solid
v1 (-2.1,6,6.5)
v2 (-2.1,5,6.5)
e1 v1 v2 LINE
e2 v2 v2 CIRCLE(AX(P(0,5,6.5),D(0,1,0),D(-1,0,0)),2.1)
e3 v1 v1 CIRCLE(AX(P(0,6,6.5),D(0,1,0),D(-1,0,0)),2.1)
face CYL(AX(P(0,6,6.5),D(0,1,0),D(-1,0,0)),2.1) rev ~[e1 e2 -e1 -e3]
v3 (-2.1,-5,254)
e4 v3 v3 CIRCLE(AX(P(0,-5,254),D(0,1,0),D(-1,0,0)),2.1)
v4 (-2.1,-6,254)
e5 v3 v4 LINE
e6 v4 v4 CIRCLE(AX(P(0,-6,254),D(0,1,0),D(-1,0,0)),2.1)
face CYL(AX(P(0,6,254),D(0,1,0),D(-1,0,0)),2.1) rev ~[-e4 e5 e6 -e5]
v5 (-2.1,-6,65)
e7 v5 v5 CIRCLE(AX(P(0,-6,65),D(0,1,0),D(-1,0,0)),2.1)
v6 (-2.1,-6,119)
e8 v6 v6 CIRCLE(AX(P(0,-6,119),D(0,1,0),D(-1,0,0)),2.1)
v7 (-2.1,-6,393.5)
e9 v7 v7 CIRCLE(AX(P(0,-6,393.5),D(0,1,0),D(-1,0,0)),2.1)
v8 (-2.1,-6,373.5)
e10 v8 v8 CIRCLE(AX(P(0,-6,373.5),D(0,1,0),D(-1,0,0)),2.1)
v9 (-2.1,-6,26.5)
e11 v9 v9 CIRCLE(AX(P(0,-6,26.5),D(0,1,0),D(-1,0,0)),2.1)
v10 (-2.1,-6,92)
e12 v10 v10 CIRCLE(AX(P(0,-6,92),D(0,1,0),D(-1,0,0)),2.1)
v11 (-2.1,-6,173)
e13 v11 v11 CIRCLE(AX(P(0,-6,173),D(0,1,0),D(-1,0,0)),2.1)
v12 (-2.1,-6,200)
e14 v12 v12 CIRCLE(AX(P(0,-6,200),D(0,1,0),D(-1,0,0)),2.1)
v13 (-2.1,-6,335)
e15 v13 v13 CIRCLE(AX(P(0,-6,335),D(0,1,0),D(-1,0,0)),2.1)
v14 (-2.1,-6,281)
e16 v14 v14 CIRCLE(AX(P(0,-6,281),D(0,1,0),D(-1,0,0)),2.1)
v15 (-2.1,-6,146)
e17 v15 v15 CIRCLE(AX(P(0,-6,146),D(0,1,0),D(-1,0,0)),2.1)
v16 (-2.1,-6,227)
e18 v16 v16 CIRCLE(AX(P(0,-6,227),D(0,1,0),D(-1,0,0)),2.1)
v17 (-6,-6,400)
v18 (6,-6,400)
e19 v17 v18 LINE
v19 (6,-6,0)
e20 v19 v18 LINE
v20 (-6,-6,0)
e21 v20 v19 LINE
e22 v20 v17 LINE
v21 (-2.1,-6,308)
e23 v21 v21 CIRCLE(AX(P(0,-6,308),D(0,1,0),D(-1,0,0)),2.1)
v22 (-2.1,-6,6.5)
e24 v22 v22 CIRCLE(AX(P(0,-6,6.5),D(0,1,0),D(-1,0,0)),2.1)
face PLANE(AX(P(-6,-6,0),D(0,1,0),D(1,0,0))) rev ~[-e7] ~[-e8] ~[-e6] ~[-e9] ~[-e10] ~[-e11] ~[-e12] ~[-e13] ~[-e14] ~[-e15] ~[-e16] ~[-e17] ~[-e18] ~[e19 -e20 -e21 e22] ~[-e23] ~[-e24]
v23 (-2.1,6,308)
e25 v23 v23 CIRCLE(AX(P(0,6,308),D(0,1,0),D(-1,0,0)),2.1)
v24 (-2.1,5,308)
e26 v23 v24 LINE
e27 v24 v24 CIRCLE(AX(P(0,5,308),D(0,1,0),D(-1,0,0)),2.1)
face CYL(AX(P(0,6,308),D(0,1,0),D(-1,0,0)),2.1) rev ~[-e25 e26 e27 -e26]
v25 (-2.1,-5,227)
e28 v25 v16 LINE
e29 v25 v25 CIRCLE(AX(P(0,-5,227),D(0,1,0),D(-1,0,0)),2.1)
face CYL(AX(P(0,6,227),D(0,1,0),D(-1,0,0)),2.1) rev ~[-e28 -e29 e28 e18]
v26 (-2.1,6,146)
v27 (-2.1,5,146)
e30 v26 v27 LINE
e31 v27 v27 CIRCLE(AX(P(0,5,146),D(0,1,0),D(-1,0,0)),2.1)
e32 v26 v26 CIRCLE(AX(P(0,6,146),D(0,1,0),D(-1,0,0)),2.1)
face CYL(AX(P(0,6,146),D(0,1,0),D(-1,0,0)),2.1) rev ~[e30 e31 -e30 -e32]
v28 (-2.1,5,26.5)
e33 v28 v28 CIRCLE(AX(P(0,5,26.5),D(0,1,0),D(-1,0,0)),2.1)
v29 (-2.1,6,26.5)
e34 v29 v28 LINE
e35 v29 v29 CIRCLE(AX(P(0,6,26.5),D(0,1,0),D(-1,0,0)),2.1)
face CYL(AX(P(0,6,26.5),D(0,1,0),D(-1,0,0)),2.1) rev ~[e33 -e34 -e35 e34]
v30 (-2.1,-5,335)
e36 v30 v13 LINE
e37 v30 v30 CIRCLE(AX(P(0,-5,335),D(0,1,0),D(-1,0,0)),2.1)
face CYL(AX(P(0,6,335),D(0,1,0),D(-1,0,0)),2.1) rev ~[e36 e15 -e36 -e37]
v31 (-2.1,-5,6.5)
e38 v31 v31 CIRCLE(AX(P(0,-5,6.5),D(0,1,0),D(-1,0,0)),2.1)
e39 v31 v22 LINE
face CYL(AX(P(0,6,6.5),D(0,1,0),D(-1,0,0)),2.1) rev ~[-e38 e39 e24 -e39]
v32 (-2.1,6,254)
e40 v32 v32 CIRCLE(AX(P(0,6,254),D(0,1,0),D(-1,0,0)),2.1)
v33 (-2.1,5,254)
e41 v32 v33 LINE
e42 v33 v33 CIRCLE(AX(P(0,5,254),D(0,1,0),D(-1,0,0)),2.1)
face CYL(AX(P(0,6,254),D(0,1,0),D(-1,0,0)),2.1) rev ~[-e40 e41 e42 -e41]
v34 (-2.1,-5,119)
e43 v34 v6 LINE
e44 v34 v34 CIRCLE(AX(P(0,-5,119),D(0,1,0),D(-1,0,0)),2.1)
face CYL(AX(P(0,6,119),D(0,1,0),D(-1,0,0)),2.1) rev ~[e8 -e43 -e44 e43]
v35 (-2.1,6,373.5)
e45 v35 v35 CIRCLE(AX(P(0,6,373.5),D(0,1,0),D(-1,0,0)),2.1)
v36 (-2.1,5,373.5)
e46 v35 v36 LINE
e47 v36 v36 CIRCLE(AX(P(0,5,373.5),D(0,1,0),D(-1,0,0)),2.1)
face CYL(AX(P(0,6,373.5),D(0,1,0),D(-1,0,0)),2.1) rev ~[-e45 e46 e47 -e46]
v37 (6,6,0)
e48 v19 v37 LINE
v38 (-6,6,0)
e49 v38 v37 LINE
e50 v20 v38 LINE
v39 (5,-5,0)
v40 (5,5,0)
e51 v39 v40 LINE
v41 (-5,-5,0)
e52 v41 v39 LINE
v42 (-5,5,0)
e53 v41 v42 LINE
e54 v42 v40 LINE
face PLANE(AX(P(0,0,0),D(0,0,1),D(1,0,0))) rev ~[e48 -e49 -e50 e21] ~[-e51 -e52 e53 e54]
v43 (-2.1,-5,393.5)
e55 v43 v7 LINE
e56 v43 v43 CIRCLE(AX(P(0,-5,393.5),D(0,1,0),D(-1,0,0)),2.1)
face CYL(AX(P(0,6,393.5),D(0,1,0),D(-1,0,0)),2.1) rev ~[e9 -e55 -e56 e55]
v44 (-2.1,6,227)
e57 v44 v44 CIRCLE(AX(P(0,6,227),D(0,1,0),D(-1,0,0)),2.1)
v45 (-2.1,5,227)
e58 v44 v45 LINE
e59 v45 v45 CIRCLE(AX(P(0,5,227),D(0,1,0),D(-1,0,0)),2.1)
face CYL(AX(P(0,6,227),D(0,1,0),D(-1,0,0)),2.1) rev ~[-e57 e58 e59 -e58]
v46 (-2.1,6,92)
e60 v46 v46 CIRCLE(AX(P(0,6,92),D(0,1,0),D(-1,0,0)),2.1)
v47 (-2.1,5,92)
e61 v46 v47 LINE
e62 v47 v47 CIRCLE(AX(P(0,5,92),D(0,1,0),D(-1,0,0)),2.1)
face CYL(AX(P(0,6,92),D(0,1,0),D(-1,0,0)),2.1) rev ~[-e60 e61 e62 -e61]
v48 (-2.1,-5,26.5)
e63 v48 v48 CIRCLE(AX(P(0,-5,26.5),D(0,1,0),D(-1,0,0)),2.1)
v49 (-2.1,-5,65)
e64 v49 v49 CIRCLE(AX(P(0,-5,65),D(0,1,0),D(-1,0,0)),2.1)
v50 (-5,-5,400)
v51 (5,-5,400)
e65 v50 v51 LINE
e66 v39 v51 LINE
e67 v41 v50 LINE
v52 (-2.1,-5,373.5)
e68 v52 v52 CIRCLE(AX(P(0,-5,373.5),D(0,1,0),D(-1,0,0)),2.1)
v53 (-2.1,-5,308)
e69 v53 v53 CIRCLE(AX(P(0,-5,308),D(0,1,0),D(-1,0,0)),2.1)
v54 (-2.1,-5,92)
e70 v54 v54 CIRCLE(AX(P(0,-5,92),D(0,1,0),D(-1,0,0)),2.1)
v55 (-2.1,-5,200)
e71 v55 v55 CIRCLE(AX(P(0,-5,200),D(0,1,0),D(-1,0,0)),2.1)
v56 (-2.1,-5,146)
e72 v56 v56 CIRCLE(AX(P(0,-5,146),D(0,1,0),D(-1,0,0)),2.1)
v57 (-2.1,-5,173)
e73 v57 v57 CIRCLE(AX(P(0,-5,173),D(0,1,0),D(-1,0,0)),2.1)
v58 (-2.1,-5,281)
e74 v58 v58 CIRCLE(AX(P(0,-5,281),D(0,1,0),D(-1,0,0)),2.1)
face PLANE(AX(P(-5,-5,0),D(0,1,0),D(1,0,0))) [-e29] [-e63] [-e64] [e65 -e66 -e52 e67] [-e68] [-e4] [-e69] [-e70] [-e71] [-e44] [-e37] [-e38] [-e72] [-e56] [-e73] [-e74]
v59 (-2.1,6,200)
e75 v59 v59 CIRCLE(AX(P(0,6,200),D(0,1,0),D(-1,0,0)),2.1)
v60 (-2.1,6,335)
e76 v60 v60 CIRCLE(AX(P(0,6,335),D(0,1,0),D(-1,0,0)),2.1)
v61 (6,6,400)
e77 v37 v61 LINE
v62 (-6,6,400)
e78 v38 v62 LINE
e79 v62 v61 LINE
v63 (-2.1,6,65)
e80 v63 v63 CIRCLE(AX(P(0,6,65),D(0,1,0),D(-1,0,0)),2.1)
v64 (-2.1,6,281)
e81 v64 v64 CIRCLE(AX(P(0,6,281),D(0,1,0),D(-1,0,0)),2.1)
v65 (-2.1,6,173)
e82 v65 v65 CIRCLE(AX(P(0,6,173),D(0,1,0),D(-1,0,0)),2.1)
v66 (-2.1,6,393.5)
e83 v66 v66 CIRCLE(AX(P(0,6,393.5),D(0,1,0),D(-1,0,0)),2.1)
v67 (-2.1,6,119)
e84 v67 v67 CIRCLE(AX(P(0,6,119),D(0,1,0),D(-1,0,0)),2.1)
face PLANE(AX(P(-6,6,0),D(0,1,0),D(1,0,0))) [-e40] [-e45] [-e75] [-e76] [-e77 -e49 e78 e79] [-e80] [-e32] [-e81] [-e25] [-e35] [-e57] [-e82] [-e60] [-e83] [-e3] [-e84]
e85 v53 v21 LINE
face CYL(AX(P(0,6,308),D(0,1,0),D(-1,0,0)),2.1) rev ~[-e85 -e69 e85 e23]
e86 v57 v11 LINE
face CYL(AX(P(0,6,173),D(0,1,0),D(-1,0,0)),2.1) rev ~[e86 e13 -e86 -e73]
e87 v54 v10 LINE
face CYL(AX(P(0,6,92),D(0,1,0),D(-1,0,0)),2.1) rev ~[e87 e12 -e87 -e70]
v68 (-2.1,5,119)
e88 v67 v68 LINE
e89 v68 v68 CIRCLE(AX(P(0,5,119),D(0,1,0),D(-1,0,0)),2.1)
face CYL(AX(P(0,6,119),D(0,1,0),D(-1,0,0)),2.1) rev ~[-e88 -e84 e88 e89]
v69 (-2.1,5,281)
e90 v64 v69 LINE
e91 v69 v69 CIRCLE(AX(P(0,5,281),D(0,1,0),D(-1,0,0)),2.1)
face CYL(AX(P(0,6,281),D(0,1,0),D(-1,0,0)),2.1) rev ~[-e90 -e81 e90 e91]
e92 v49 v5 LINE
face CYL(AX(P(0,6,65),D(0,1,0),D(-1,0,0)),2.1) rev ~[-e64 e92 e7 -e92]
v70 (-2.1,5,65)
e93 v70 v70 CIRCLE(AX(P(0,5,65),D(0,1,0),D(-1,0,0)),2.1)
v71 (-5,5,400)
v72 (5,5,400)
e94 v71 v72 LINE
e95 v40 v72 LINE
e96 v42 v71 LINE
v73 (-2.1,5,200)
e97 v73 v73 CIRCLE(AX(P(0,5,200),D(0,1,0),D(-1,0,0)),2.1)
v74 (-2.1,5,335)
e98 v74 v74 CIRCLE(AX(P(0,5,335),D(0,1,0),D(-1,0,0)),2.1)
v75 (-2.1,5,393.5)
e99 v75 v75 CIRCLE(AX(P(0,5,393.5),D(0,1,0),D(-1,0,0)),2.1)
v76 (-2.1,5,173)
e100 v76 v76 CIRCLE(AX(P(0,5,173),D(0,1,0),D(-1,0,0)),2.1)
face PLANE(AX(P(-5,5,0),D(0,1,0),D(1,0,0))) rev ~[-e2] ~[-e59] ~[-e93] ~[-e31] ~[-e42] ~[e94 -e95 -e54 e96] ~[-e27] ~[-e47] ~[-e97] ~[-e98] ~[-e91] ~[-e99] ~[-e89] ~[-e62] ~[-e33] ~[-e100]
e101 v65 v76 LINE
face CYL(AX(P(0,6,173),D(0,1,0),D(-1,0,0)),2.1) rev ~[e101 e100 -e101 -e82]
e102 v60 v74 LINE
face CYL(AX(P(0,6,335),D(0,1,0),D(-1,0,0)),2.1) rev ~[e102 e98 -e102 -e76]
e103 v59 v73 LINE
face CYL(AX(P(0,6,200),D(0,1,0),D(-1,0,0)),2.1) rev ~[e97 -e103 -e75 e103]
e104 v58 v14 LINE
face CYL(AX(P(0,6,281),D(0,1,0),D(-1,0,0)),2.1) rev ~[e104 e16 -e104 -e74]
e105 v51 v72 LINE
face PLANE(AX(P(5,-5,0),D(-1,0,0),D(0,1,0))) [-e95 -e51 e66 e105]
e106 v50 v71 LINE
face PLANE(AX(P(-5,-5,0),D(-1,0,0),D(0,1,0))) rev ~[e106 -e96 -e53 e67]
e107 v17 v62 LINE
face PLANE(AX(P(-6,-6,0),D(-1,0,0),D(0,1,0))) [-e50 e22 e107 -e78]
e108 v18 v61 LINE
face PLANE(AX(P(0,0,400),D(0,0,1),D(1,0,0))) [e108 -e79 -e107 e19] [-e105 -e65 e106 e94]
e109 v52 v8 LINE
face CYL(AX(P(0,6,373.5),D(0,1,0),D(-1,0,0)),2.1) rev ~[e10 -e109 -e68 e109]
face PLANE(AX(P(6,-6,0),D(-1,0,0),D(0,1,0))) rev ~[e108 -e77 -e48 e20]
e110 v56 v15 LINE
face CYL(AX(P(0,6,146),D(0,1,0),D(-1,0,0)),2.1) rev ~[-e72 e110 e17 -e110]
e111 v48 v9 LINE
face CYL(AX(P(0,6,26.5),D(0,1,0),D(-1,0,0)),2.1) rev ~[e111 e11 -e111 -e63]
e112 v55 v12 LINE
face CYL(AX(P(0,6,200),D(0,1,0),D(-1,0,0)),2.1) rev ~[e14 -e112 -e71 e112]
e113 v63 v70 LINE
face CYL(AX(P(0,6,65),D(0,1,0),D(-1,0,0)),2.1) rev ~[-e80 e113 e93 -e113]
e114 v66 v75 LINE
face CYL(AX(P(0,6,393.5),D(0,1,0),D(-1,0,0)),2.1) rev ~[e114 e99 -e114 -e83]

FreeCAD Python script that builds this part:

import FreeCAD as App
import Part
import Sketcher

doc = App.newDocument("Part")
body = doc.addObject("PartDesign::Body", "Body")

# Sketch on XY plane
sketch1 = body.newObject("Sketcher::SketchObject", "Sketch")
sketch1.AttachmentSupport = (doc.getObject("XY_Plane"), [""])
sketch1.MapMode = "FlatFace"
sketch1.addGeometry(Part.LineSegment(App.Vector(-6, 6, 0), App.Vector(-6, -6, 0)), False)
sketch1.addGeometry(Part.LineSegment(App.Vector(-6, -6, 0), App.Vector(6, -6, 0)), False)
sketch1.addGeometry(Part.LineSegment(App.Vector(6, -6, 0), App.Vector(6, 6, 0)), False)
sketch1.addGeometry(Part.LineSegment(App.Vector(6, 6, 0), App.Vector(-6, 6, 0)), False)
sketch1.addGeometry(Part.LineSegment(App.Vector(5, -5, 0), App.Vector(-5, -5, 0)), False)
sketch1.addGeometry(Part.LineSegment(App.Vector(-5, -5, 0), App.Vector(-5, 5, 0)), False)
sketch1.addGeometry(Part.LineSegment(App.Vector(-5, 5, 0), App.Vector(5, 5, 0)), False)
sketch1.addGeometry(Part.LineSegment(App.Vector(5, 5, 0), App.Vector(5, -5, 0)), False)
sketch1.addConstraint(Sketcher.Constraint("Coincident", 0, 2, 1, 1))
sketch1.addConstraint(Sketcher.Constraint("Coincident", 1, 2, 2, 1))
sketch1.addConstraint(Sketcher.Constraint("Coincident", 2, 2, 3, 1))
sketch1.addConstraint(Sketcher.Constraint("Coincident", 3, 2, 0, 1))
sketch1.addConstraint(Sketcher.Constraint("Coincident", 4, 2, 5, 1))
sketch1.addConstraint(Sketcher.Constraint("Coincident", 5, 2, 6, 1))
sketch1.addConstraint(Sketcher.Constraint("Coincident", 6, 2, 7, 1))
sketch1.addConstraint(Sketcher.Constraint("Coincident", 7, 2, 4, 1))
sketch1.addConstraint(Sketcher.Constraint("Vertical", 0))
sketch1.addConstraint(Sketcher.Constraint("Horizontal", 1))
sketch1.addConstraint(Sketcher.Constraint("Vertical", 2))
sketch1.addConstraint(Sketcher.Constraint("Horizontal", 3))
sketch1.addConstraint(Sketcher.Constraint("Horizontal", 4))
sketch1.addConstraint(Sketcher.Constraint("Vertical", 5))
sketch1.addConstraint(Sketcher.Constraint("Horizontal", 6))
sketch1.addConstraint(Sketcher.Constraint("Vertical", 7))
sketch1.addConstraint(Sketcher.Constraint("Symmetric", 0, 2, 2, 2, -1, 1))
sketch1.addConstraint(Sketcher.Constraint("Symmetric", 4, 2, 6, 2, -1, 1))
sketch1.addConstraint(Sketcher.Constraint("Equal", 3, 0))
sketch1.addConstraint(Sketcher.Constraint("Equal", 6, 5))
sketch1.addConstraint(Sketcher.Constraint("DistanceX", 1, 1, 1, 2, 12.0))
sketch1.addConstraint(Sketcher.Constraint("DistanceX", 4, 2, 4, 1, 10.0))
pad1 = body.newObject("PartDesign::Pad", "Pad")
pad1.Profile = sketch1
pad1.Length = 400

# Sketch on XZ plane
sketch2 = body.newObject("Sketcher::SketchObject", "Sketch001")
sketch2.AttachmentSupport = (doc.getObject("XZ_Plane"), [""])
sketch2.MapMode = "FlatFace"
sketch2.AttachmentOffset = App.Placement(App.Vector(0, 0, -6), App.Rotation())
sketch2.addGeometry(Part.Circle(App.Vector(0, 200, 0), App.Vector(0, 0, 1), 2.1), False)
sketch2.addGeometry(Part.Circle(App.Vector(0, 227, 0), App.Vector(0, 0, 1), 2.1), False)
sketch2.addGeometry(Part.Circle(App.Vector(0, 254, 0), App.Vector(0, 0, 1), 2.1), False)
sketch2.addGeometry(Part.Circle(App.Vector(0, 281, 0), App.Vector(0, 0, 1), 2.1), False)
sketch2.addGeometry(Part.Circle(App.Vector(0, 308, 0), App.Vector(0, 0, 1), 2.1), False)
sketch2.addGeometry(Part.Circle(App.Vector(0, 335, 0), App.Vector(0, 0, 1), 2.1), False)
sketch2.addGeometry(Part.Circle(App.Vector(0, 173, 0), App.Vector(0, 0, 1), 2.1), False)
sketch2.addGeometry(Part.Circle(App.Vector(0, 146, 0), App.Vector(0, 0, 1), 2.1), False)
sketch2.addGeometry(Part.Circle(App.Vector(0, 119, 0), App.Vector(0, 0, 1), 2.1), False)
sketch2.addGeometry(Part.Circle(App.Vector(0, 92, 0), App.Vector(0, 0, 1), 2.1), False)
sketch2.addGeometry(Part.Circle(App.Vector(0, 65, 0), App.Vector(0, 0, 1), 2.1), False)
sketch2.addConstraint(Sketcher.Constraint("Equal", 0, 1))
sketch2.addConstraint(Sketcher.Constraint("Equal", 1, 2))
sketch2.addConstraint(Sketcher.Constraint("Equal", 2, 3))
sketch2.addConstraint(Sketcher.Constraint("Equal", 3, 4))
sketch2.addConstraint(Sketcher.Constraint("Equal", 4, 5))
sketch2.addConstraint(Sketcher.Constraint("Equal", 5, 6))
sketch2.addConstraint(Sketcher.Constraint("Equal", 6, 7))
sketch2.addConstraint(Sketcher.Constraint("Equal", 7, 8))
sketch2.addConstraint(Sketcher.Constraint("Equal", 8, 9))
sketch2.addConstraint(Sketcher.Constraint("Equal", 9, 10))
sketch2.addConstraint(Sketcher.Constraint("PointOnObject", 0, 3, -2))
sketch2.addConstraint(Sketcher.Constraint("PointOnObject", 1, 3, -2))
sketch2.addConstraint(Sketcher.Constraint("PointOnObject", 2, 3, -2))
sketch2.addConstraint(Sketcher.Constraint("PointOnObject", 3, 3, -2))
sketch2.addConstraint(Sketcher.Constraint("PointOnObject", 4, 3, -2))
sketch2.addConstraint(Sketcher.Constraint("PointOnObject", 5, 3, -2))
sketch2.addConstraint(Sketcher.Constraint("PointOnObject", 6, 3, -2))
sketch2.addConstraint(Sketcher.Constraint("PointOnObject", 7, 3, -2))
sketch2.addConstraint(Sketcher.Constraint("PointOnObject", 8, 3, -2))
sketch2.addConstraint(Sketcher.Constraint("PointOnObject", 9, 3, -2))
sketch2.addConstraint(Sketcher.Constraint("PointOnObject", 10, 3, -2))
sketch2.addConstraint(Sketcher.Constraint("Diameter", 0, 4.2))
sketch2.addConstraint(Sketcher.Constraint("DistanceY", -1, 1, 0, 3, 200.0))
sketch2.addConstraint(Sketcher.Constraint("DistanceY", -1, 1, 1, 3, 227.0))
sketch2.addConstraint(Sketcher.Constraint("DistanceY", -1, 1, 2, 3, 254.0))
sketch2.addConstraint(Sketcher.Constraint("DistanceY", -1, 1, 3, 3, 281.0))
sketch2.addConstraint(Sketcher.Constraint("DistanceY", -1, 1, 4, 3, 308.0))
sketch2.addConstraint(Sketcher.Constraint("DistanceY", -1, 1, 5, 3, 335.0))
sketch2.addConstraint(Sketcher.Constraint("DistanceY", -1, 1, 6, 3, 173.0))
sketch2.addConstraint(Sketcher.Constraint("DistanceY", -1, 1, 7, 3, 146.0))
sketch2.addConstraint(Sketcher.Constraint("DistanceY", -1, 1, 8, 3, 119.0))
sketch2.addConstraint(Sketcher.Constraint("DistanceY", -1, 1, 9, 3, 92.0))
sketch2.addConstraint(Sketcher.Constraint("DistanceY", -1, 1, 10, 3, 65.0))
pocket1 = body.newObject("PartDesign::Pocket", "Pocket")
pocket1.Profile = sketch2
pocket1.Length = 500
pocket1.Reversed = True

# Sketch on XZ plane
sketch3 = body.newObject("Sketcher::SketchObject", "Sketch002")
sketch3.AttachmentSupport = (doc.getObject("XZ_Plane"), [""])
sketch3.MapMode = "FlatFace"
sketch3.AttachmentOffset = App.Placement(App.Vector(0, 0, -6), App.Rotation())
sketch3.addGeometry(Part.Circle(App.Vector(0, 6.5, 0), App.Vector(0, 0, 1), 2.1), False)
sketch3.addGeometry(Part.Circle(App.Vector(0, 26.5, 0), App.Vector(0, 0, 1), 2.1), False)
sketch3.addGeometry(Part.Circle(App.Vector(0, 373.5, 0), App.Vector(0, 0, 1), 2.1), False)
sketch3.addGeometry(Part.Circle(App.Vector(0, 393.5, 0), App.Vector(0, 0, 1), 2.1), False)
sketch3.addConstraint(Sketcher.Constraint("Equal", 0, 1))
sketch3.addConstraint(Sketcher.Constraint("Equal", 1, 2))
sketch3.addConstraint(Sketcher.Constraint("Equal", 2, 3))
sketch3.addConstraint(Sketcher.Constraint("PointOnObject", 0, 3, -2))
sketch3.addConstraint(Sketcher.Constraint("PointOnObject", 1, 3, -2))
sketch3.addConstraint(Sketcher.Constraint("PointOnObject", 2, 3, -2))
sketch3.addConstraint(Sketcher.Constraint("PointOnObject", 3, 3, -2))
sketch3.addConstraint(Sketcher.Constraint("Diameter", 0, 4.2))
sketch3.addConstraint(Sketcher.Constraint("DistanceY", 0, 3, 1, 3, 20.0))
sketch3.addConstraint(Sketcher.Constraint("DistanceY", 1, 3, 2, 3, 347.0))
sketch3.addConstraint(Sketcher.Constraint("DistanceY", 2, 3, 3, 3, 20.0))
sketch3.addConstraint(Sketcher.Constraint("DistanceY", -1, 1, 0, 3, 6.5))
pocket2 = body.newObject("PartDesign::Pocket", "Pocket001")
pocket2.Profile = sketch3
pocket2.Length = 102
pocket2.Reversed = True

doc.recompute()
